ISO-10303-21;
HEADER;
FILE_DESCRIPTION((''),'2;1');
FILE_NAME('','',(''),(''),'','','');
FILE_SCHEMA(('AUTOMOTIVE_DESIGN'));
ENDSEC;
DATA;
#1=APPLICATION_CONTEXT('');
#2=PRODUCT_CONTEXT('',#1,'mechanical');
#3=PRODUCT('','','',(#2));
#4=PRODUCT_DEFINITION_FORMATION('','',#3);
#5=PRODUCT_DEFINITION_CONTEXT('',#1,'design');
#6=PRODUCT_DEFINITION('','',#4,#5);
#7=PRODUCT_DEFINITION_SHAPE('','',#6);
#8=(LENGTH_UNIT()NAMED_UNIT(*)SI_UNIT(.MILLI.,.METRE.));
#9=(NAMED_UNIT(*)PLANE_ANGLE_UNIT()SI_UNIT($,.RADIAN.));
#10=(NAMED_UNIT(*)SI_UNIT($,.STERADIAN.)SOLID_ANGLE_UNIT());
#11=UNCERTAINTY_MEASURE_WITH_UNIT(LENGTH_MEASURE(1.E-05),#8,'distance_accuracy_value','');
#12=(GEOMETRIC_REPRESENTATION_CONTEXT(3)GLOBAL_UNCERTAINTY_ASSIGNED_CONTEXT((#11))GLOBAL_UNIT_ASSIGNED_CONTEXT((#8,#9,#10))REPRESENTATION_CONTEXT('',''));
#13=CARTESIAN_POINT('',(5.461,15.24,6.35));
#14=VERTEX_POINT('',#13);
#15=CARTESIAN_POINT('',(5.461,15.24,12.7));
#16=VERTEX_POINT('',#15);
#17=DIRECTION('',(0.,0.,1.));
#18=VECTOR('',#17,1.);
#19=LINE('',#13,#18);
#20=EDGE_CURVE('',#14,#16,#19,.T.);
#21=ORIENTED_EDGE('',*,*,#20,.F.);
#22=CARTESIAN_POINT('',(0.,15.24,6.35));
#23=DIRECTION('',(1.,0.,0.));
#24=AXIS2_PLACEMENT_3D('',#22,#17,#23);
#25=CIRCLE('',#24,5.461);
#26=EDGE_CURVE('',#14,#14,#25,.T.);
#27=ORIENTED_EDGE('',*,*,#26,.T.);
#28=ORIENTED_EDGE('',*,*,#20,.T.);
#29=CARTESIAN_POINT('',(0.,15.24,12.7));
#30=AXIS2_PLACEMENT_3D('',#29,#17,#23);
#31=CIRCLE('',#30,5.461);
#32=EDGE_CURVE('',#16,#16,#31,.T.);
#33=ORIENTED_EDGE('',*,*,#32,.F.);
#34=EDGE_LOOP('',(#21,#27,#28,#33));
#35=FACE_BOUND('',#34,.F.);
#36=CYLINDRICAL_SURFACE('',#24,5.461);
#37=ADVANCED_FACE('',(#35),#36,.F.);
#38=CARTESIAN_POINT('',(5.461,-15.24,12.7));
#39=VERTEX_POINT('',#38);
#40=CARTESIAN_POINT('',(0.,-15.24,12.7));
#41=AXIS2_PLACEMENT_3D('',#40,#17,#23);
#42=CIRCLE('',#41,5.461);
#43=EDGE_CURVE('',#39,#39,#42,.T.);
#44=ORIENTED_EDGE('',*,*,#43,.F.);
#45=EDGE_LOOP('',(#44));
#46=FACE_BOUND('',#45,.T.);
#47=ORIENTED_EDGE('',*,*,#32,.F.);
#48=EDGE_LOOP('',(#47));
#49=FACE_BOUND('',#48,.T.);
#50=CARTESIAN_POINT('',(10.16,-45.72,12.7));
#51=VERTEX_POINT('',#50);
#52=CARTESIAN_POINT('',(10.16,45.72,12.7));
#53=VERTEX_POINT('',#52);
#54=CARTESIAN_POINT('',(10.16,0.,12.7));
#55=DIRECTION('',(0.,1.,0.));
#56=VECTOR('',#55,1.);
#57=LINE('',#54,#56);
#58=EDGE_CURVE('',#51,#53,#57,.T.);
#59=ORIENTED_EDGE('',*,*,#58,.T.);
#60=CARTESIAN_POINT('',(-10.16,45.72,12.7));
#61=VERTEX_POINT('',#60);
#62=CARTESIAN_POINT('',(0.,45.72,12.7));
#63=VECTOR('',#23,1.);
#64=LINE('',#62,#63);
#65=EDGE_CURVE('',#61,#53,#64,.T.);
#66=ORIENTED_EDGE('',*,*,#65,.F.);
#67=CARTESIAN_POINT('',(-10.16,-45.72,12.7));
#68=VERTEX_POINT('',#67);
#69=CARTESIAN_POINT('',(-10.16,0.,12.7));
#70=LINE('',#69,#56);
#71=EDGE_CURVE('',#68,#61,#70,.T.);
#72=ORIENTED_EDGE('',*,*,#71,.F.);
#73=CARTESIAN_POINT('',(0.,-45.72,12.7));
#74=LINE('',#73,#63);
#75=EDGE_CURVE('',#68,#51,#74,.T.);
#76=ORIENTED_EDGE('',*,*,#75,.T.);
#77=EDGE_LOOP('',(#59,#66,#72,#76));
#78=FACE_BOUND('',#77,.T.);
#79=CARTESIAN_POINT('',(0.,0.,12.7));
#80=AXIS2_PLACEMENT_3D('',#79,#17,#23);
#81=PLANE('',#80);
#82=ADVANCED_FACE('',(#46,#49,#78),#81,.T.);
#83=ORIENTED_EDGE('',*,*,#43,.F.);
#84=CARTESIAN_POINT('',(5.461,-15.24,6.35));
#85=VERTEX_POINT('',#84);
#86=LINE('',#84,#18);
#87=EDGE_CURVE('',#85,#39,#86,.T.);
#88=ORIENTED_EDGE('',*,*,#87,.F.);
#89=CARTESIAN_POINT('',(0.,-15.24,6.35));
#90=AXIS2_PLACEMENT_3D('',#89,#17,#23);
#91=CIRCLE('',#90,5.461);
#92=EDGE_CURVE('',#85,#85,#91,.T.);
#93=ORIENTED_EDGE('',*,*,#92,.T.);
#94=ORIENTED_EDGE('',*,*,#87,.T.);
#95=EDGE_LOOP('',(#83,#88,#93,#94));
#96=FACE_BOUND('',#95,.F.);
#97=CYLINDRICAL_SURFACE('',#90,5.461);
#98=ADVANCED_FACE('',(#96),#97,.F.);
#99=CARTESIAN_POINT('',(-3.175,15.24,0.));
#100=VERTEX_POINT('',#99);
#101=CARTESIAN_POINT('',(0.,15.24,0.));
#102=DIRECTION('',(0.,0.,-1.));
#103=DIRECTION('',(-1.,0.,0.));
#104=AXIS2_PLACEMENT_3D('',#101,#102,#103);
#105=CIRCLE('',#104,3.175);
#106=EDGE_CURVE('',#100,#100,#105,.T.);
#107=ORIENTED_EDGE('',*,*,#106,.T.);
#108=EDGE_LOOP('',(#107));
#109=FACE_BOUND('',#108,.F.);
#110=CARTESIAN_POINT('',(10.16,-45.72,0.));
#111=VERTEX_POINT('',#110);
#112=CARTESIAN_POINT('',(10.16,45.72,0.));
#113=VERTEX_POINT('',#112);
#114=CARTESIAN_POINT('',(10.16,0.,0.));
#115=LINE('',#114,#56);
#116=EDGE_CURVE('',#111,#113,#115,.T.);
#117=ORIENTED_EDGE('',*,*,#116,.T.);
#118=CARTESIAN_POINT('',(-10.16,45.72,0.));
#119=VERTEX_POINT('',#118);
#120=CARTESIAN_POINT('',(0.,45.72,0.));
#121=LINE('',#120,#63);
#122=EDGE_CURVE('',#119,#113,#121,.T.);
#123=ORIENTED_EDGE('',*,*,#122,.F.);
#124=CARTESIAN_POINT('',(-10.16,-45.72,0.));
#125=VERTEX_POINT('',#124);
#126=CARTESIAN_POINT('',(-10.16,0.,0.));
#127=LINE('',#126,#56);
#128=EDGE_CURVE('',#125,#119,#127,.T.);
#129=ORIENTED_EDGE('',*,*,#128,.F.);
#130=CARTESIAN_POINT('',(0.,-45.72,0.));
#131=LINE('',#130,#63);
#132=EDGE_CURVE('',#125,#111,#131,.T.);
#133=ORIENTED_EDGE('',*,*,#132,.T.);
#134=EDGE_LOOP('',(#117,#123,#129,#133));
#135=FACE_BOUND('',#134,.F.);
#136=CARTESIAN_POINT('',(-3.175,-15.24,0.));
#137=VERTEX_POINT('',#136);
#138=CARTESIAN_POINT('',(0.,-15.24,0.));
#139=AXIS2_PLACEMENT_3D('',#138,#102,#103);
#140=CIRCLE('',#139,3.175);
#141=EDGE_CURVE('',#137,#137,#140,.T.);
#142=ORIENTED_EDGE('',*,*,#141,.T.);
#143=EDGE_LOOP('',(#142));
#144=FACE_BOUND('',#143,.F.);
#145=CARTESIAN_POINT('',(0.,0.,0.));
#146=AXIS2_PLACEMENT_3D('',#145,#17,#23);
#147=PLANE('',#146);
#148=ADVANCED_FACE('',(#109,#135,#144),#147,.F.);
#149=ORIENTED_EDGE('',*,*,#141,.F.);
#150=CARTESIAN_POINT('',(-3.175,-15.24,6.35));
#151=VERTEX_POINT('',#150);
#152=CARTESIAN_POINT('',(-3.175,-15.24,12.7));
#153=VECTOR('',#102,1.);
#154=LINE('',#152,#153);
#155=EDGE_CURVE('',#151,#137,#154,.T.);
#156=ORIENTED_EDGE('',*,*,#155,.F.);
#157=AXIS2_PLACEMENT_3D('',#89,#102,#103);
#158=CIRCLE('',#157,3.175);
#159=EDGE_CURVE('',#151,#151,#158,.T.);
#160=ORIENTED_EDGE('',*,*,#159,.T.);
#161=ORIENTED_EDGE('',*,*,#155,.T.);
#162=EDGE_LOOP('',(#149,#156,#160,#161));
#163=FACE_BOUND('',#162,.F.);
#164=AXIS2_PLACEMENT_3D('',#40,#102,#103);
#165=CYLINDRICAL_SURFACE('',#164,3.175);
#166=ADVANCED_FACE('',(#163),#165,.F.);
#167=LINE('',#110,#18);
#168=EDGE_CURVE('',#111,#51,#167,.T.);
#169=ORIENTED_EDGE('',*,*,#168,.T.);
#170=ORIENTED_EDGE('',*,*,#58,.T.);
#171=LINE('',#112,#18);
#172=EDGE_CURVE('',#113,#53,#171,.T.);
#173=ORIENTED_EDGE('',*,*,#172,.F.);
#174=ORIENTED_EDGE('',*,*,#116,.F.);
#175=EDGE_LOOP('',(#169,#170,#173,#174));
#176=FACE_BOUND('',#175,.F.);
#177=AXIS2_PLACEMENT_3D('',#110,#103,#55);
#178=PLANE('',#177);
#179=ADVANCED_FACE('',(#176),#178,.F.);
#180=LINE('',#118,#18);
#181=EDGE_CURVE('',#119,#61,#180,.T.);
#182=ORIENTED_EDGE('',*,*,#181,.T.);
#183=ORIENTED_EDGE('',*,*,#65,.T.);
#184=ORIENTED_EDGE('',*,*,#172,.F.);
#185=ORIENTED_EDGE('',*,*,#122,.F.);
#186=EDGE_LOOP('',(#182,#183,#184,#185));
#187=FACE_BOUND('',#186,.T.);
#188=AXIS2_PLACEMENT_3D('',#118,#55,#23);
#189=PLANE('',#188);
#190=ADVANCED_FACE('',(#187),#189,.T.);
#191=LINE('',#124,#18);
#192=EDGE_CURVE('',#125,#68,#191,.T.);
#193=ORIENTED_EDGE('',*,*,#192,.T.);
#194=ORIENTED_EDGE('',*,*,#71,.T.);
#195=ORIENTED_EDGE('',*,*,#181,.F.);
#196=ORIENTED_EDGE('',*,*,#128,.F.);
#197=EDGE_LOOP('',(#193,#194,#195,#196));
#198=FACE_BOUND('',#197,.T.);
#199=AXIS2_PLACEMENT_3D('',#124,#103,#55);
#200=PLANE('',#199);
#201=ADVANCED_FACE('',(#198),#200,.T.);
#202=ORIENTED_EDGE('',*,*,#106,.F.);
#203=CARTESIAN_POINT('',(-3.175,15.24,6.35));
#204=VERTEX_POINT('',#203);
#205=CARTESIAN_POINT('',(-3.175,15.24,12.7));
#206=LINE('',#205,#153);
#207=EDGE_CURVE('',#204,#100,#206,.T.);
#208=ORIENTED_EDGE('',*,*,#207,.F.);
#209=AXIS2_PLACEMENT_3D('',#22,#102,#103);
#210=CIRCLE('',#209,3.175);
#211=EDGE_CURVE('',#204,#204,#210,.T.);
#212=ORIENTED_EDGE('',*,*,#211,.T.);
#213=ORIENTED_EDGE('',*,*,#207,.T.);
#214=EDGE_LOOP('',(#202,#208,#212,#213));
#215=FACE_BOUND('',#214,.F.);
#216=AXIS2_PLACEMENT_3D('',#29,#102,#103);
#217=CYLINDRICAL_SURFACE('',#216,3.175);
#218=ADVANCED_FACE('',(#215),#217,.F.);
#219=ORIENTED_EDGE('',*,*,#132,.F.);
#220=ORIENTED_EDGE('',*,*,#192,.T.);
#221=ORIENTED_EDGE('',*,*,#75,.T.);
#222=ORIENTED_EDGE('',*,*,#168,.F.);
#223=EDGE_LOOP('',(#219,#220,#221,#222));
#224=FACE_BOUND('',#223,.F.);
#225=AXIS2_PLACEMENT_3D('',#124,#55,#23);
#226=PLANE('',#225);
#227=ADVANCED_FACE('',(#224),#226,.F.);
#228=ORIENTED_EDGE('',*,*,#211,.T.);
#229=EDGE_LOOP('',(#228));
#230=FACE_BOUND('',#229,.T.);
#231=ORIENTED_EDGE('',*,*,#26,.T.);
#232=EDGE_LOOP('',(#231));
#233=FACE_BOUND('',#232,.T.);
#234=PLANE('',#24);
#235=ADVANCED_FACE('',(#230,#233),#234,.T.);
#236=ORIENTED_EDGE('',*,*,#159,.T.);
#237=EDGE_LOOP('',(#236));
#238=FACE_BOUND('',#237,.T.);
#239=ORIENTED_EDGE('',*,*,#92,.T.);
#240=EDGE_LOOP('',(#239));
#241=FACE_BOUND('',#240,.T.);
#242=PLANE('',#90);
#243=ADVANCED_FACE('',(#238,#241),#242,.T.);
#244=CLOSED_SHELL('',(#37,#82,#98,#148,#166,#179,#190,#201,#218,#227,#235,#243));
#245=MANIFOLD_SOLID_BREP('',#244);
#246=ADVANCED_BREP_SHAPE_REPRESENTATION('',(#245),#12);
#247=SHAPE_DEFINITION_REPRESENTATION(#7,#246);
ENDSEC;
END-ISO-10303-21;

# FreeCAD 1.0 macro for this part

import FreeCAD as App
import Part
import Sketcher
Q = App.Units.Quantity


def add_polygon(sketch, points):
    """Adds a closed chain of lines whose ends are joined by coincident constraints."""
    first, n = sketch.GeometryCount, len(points)
    for a, b in zip(points, points[1:] + points[:1]):
        sketch.addGeometry(Part.LineSegment(App.Vector(*a, 0), App.Vector(*b, 0)), False)
    for i in range(n):
        sketch.addConstraint(Sketcher.Constraint("Coincident", first + i, 2, first + (i + 1) % n, 1))

doc = App.newDocument("Part")
body = doc.addObject("PartDesign::Body", "Body")

# Sketch on XY plane
sketch1 = body.newObject("Sketcher::SketchObject", "Sketch")
sketch1.AttachmentSupport = (doc.getObject("XY_Plane"), [""])
sketch1.MapMode = "FlatFace"
add_polygon(sketch1, [(-10, 46), (-10, -46), (10, -46), (10, 46)])  # lines 0-3
sketch1.addConstraint([
    Sketcher.Constraint("Vertical", 0),
    Sketcher.Constraint("Horizontal", 1),
    Sketcher.Constraint("Vertical", 2),
    Sketcher.Constraint("Horizontal", 3),
    Sketcher.Constraint("Symmetric", 0, 2, 2, 2, -1, 1),
    Sketcher.Constraint("DistanceX", 1, 1, 1, 2, Q("0.8 in")),
    Sketcher.Constraint("DistanceY", 0, 2, 0, 1, Q("3.6 in")),
])
pad1 = body.newObject("PartDesign::Pad", "Pad")
pad1.Profile = sketch1
pad1.Length = Q("0.5 in")

# Sketch on XY plane
sketch2 = body.newObject("Sketcher::SketchObject", "Sketch001")
sketch2.AttachmentSupport = (doc.getObject("XY_Plane"), [""])
sketch2.MapMode = "FlatFace"
sketch2.AttachmentOffset = App.Placement(App.Vector(0, 0, 0.5 * 25.4), App.Rotation())
sketch2.addGeometry([
    Part.Circle(App.Vector(0, 15.2, 0), App.Vector(0, 0, 1), 3.2),
    Part.Circle(App.Vector(0, -15.2, 0), App.Vector(0, 0, 1), 3.2),
], False)
sketch2.addConstraint([
    Sketcher.Constraint("Equal", 0, 1),
    Sketcher.Constraint("Symmetric", 0, 3, 1, 3, -1, 1),
    Sketcher.Constraint("PointOnObject", 0, 3, -2),
    Sketcher.Constraint("Diameter", 0, Q("0.25 in")),
    Sketcher.Constraint("DistanceY", -1, 1, 0, 3, Q("0.6 in")),
])
doc.recompute()
hole = body.newObject("PartDesign::Hole", "Hole")
hole.Profile = sketch2
hole.ThreadType = "None"
hole.Diameter = Q("0.25 in")
hole.DepthType = "ThroughAll"
hole.HoleCutType = "Counterbore"
hole.HoleCutDiameter = Q("0.43 in")
hole.HoleCutDepth = Q("0.25 in")

doc.recompute()
